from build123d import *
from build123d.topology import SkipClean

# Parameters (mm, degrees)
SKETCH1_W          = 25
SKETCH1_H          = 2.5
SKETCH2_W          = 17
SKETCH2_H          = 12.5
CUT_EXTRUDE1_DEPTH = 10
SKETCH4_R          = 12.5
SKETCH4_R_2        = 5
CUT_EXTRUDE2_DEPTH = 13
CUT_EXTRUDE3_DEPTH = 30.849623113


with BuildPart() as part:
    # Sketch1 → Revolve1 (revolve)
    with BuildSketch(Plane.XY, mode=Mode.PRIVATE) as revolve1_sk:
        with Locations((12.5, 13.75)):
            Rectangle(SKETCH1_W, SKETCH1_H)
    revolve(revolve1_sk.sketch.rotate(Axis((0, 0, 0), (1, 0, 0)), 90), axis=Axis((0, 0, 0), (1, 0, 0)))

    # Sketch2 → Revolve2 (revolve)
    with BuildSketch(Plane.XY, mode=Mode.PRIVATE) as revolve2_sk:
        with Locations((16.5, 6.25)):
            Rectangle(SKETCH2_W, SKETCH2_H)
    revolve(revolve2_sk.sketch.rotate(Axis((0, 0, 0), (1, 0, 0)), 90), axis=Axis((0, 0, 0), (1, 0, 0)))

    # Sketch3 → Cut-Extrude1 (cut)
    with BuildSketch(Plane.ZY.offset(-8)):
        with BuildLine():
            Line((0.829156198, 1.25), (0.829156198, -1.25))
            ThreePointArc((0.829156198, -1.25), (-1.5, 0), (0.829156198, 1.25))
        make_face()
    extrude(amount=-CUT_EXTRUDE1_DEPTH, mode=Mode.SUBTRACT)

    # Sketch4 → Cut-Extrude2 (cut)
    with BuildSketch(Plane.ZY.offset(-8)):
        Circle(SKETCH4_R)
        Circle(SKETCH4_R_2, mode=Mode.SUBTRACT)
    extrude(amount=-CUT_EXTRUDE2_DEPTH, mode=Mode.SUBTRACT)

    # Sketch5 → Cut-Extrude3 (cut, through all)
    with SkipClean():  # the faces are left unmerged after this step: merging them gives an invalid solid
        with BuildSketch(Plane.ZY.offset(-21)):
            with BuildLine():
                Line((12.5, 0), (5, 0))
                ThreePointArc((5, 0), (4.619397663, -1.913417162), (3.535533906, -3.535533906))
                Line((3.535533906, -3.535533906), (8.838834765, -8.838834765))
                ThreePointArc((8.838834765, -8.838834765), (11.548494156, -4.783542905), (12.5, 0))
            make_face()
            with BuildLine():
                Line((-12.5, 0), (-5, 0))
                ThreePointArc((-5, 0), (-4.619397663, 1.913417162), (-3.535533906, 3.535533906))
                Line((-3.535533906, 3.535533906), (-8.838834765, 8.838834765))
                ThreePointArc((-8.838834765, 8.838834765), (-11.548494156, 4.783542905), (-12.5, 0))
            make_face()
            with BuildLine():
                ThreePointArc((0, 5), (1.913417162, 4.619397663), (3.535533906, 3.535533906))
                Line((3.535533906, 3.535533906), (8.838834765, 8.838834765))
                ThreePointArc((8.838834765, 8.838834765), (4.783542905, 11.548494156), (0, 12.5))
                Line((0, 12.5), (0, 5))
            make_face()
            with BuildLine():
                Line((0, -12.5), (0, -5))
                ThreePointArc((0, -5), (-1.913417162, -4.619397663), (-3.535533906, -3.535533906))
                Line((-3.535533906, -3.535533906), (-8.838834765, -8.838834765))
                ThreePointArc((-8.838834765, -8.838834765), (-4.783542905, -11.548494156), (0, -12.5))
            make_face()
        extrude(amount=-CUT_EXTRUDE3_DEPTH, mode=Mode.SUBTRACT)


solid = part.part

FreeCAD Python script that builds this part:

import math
import FreeCAD as App
import Part
import Sketcher

doc = App.newDocument("Part")
body = doc.addObject("PartDesign::Body", "Body")

sketch1 = body.newObject("Sketcher::SketchObject", "Sketch")
sketch1.AttachmentSupport = (doc.getObject("XY_Plane"), [""])
sketch1.MapMode = "FlatFace"
sketch1.addGeometry([
    Part.LineSegment(App.Vector(0, 15, 0), App.Vector(0, 12.5, 0)),
    Part.LineSegment(App.Vector(0, 12.5, 0), App.Vector(25, 12.5, 0)),
    Part.LineSegment(App.Vector(25, 12.5, 0), App.Vector(25, 15, 0)),
    Part.LineSegment(App.Vector(25, 15, 0), App.Vector(0, 15, 0)),
], False)
sketch1.addConstraint([
    Sketcher.Constraint("Coincident", 0, 2, 1, 1),
    Sketcher.Constraint("Coincident", 1, 2, 2, 1),
    Sketcher.Constraint("Coincident", 2, 2, 3, 1),
    Sketcher.Constraint("Coincident", 3, 2, 0, 1),
    Sketcher.Constraint("Vertical", 0),
    Sketcher.Constraint("Horizontal", 1),
    Sketcher.Constraint("Vertical", 2),
    Sketcher.Constraint("Horizontal", 3),
    Sketcher.Constraint("PointOnObject", 0, 2, -2),
    Sketcher.Constraint("DistanceX", 1, 1, 1, 2, 25.0),
    Sketcher.Constraint("DistanceY", 0, 2, 0, 1, 2.5),
    Sketcher.Constraint("DistanceY", -1, 1, 2, 2, 15.0),
])
revolution = body.newObject("PartDesign::Revolution", "Revolution")
revolution.Profile = sketch1
revolution.ReferenceAxis = (sketch1, ["H_Axis"])
revolution.Angle = 360

sketch2 = body.newObject("Sketcher::SketchObject", "Sketch001")
sketch2.AttachmentSupport = (doc.getObject("XY_Plane"), [""])
sketch2.MapMode = "FlatFace"
sketch2.addGeometry([
    Part.LineSegment(App.Vector(8, 12, 0), App.Vector(8, 0, 0)),
    Part.LineSegment(App.Vector(8, 0, 0), App.Vector(25, 0, 0)),
    Part.LineSegment(App.Vector(25, 0, 0), App.Vector(25, 12, 0)),
    Part.LineSegment(App.Vector(25, 12, 0), App.Vector(8, 12, 0)),
], False)
sketch2.addConstraint([
    Sketcher.Constraint("Coincident", 0, 2, 1, 1),
    Sketcher.Constraint("Coincident", 1, 2, 2, 1),
    Sketcher.Constraint("Coincident", 2, 2, 3, 1),
    Sketcher.Constraint("Coincident", 3, 2, 0, 1),
    Sketcher.Constraint("Vertical", 0),
    Sketcher.Constraint("Horizontal", 1),
    Sketcher.Constraint("Vertical", 2),
    Sketcher.Constraint("Horizontal", 3),
    Sketcher.Constraint("PointOnObject", 0, 2, -1),
    Sketcher.Constraint("DistanceX", 1, 1, 1, 2, 17.0),
    Sketcher.Constraint("DistanceY", 0, 2, 0, 1, 12.5),
    Sketcher.Constraint("DistanceX", -1, 1, 0, 2, 8.0),
])
revolution2 = body.newObject("PartDesign::Revolution", "Revolution001")
revolution2.Profile = sketch2
revolution2.ReferenceAxis = (sketch2, ["H_Axis"])
revolution2.Angle = 360

sketch3 = body.newObject("Sketcher::SketchObject", "Sketch002")
sketch3.AttachmentSupport = (doc.getObject("YZ_Plane"), [""])
sketch3.MapMode = "FlatFace"
sketch3.AttachmentOffset = App.Placement(App.Vector(0, 0, 8), App.Rotation())
sketch3.addGeometry([
    Part.LineSegment(App.Vector(-1.2, 0.8, 0), App.Vector(1.2, 0.8, 0)),
    Part.ArcOfCircle(Part.Circle(App.Vector(0, 0, 0), App.Vector(0, 0, 1), 1.5), math.radians(146), math.radians(394)),
], False)
sketch3.addConstraint([
    Sketcher.Constraint("Coincident", 0, 1, 1, 1),
    Sketcher.Constraint("Coincident", 1, 2, 0, 2),
    Sketcher.Constraint("Horizontal", 0),
    Sketcher.Constraint("Coincident", 1, 3, -1, 1),
    Sketcher.Constraint("Radius", 1, 1.5),
    Sketcher.Constraint("DistanceX", 0, 1, 0, 2, 2.5),
])
pocket1 = body.newObject("PartDesign::Pocket", "Pocket")
pocket1.Profile = sketch3
pocket1.Length = 10
pocket1.Reversed = True

sketch4 = body.newObject("Sketcher::SketchObject", "Sketch003")
sketch4.AttachmentSupport = (doc.getObject("YZ_Plane"), [""])
sketch4.MapMode = "FlatFace"
sketch4.AttachmentOffset = App.Placement(App.Vector(0, 0, 8), App.Rotation())
sketch4.addGeometry([
    Part.Circle(App.Vector(0, 0, 0), App.Vector(0, 0, 1), 12),
    Part.Circle(App.Vector(0, 0, 0), App.Vector(0, 0, 1), 5),
], False)
sketch4.addConstraint([
    Sketcher.Constraint("Coincident", 0, 3, -1, 1),
    Sketcher.Constraint("Coincident", 1, 3, -1, 1),
    Sketcher.Constraint("Diameter", 0, 25.0),
    Sketcher.Constraint("Diameter", 1, 10.0),
])
pocket2 = body.newObject("PartDesign::Pocket", "Pocket001")
pocket2.Profile = sketch4
pocket2.Length = 13
pocket2.Reversed = True

sketch5 = body.newObject("Sketcher::SketchObject", "Sketch004")
sketch5.AttachmentSupport = (doc.getObject("YZ_Plane"), [""])
sketch5.MapMode = "FlatFace"
sketch5.AttachmentOffset = App.Placement(App.Vector(0, 0, 21), App.Rotation())
sketch5.addGeometry([
    Part.LineSegment(App.Vector(0, 12.5, 0), App.Vector(0, 5, 0)),
    Part.ArcOfCircle(Part.Circle(App.Vector(0, 0, 0), App.Vector(0, 0, 1), 5), math.radians(90), math.radians(135)),
    Part.LineSegment(App.Vector(-3.5, 3.5, 0), App.Vector(-8.8, 8.8, 0)),
    Part.ArcOfCircle(Part.Circle(App.Vector(0, 0, 0), App.Vector(0, 0, 1), 12.5), math.radians(90), math.radians(135)),
    Part.LineSegment(App.Vector(0, -12.5, 0), App.Vector(0, -5, 0)),
    Part.ArcOfCircle(Part.Circle(App.Vector(0, 0, 0), App.Vector(0, 0, 1), 5), math.radians(-90), math.radians(-45)),
    Part.LineSegment(App.Vector(3.5, -3.5, 0), App.Vector(8.8, -8.8, 0)),
    Part.ArcOfCircle(Part.Circle(App.Vector(0, 0, 0), App.Vector(0, 0, 1), 12.5), math.radians(-90), math.radians(-45)),
    Part.ArcOfCircle(Part.Circle(App.Vector(0, 0, 0), App.Vector(0, 0, 1), 5), math.radians(0), math.radians(45)),
    Part.LineSegment(App.Vector(3.5, 3.5, 0), App.Vector(8.8, 8.8, 0)),
    Part.ArcOfCircle(Part.Circle(App.Vector(0, 0, 0), App.Vector(0, 0, 1), 12.5), math.radians(0), math.radians(45)),
    Part.LineSegment(App.Vector(12.5, 0, 0), App.Vector(5, 0, 0)),
    Part.LineSegment(App.Vector(-12.5, 0, 0), App.Vector(-5, 0, 0)),
    Part.ArcOfCircle(Part.Circle(App.Vector(0, 0, 0), App.Vector(0, 0, 1), 5), math.radians(180), math.radians(225)),
    Part.LineSegment(App.Vector(-3.5, -3.5, 0), App.Vector(-8.8, -8.8, 0)),
    Part.ArcOfCircle(Part.Circle(App.Vector(0, 0, 0), App.Vector(0, 0, 1), 12.5), math.radians(-180), math.radians(-135)),
], False)
sketch5.addConstraint([
    Sketcher.Constraint("Coincident", 0, 2, 1, 1),
    Sketcher.Constraint("Coincident", 1, 2, 2, 1),
    Sketcher.Constraint("Coincident", 2, 2, 3, 2),
    Sketcher.Constraint("Coincident", 3, 1, 0, 1),
    Sketcher.Constraint("Coincident", 4, 2, 5, 1),
    Sketcher.Constraint("Coincident", 5, 2, 6, 1),
    Sketcher.Constraint("Coincident", 6, 2, 7, 2),
    Sketcher.Constraint("Coincident", 7, 1, 4, 1),
    Sketcher.Constraint("Coincident", 8, 2, 9, 1),
    Sketcher.Constraint("Coincident", 9, 2, 10, 2),
    Sketcher.Constraint("Coincident", 10, 1, 11, 1),
    Sketcher.Constraint("Coincident", 11, 2, 8, 1),
    Sketcher.Constraint("Coincident", 12, 2, 13, 1),
    Sketcher.Constraint("Coincident", 13, 2, 14, 1),
    Sketcher.Constraint("Coincident", 14, 2, 15, 2),
    Sketcher.Constraint("Coincident", 15, 1, 12, 1),
    Sketcher.Constraint("Vertical", 0),
    Sketcher.Constraint("Vertical", 4),
    Sketcher.Constraint("Horizontal", 11),
    Sketcher.Constraint("Horizontal", 12),
    Sketcher.Constraint("Coincident", 1, 3, -1, 1),
    Sketcher.Constraint("Coincident", 3, 3, -1, 1),
    Sketcher.Constraint("Coincident", 5, 3, -1, 1),
    Sketcher.Constraint("Coincident", 7, 3, -1, 1),
    Sketcher.Constraint("Coincident", 8, 3, -1, 1),
    Sketcher.Constraint("Coincident", 10, 3, -1, 1),
    Sketcher.Constraint("Coincident", 13, 3, -1, 1),
    Sketcher.Constraint("Coincident", 15, 3, -1, 1),
    Sketcher.Constraint("Equal", 1, 5),
    Sketcher.Constraint("Equal", 3, 7),
    Sketcher.Constraint("Equal", 5, 8),
    Sketcher.Constraint("Equal", 7, 10),
    Sketcher.Constraint("Equal", 8, 13),
    Sketcher.Constraint("Equal", 10, 15),
    Sketcher.Constraint("PointOnObject", 0, 2, -2),
    Sketcher.Constraint("PointOnObject", 4, 2, -2),
    Sketcher.Constraint("PointOnObject", 10, 1, -1),
    Sketcher.Constraint("PointOnObject", 12, 2, -1),
    Sketcher.Constraint("Parallel", 2, 6),
    Sketcher.Constraint("Perpendicular", 6, 9),
    Sketcher.Constraint("Parallel", 9, 14),
    Sketcher.Constraint("Horizontal", 1, 2, 8, 2),
    Sketcher.Constraint("Horizontal", 2, 2, 9, 2),
    Sketcher.Constraint("Horizontal", 5, 2, 13, 2),
    Sketcher.Constraint("Vertical", 5, 2, 8, 2),
    Sketcher.Constraint("Radius", 1, 5.0),
    Sketcher.Constraint("Radius", 3, 12.5),
    Sketcher.Constraint("DistanceX", 1, 2, -1, 1, 3.535534),
])
pocket3 = body.newObject("PartDesign::Pocket", "Pocket002")
pocket3.Profile = sketch5
pocket3.Type = "ThroughAll"
pocket3.Reversed = True

doc.recompute()
